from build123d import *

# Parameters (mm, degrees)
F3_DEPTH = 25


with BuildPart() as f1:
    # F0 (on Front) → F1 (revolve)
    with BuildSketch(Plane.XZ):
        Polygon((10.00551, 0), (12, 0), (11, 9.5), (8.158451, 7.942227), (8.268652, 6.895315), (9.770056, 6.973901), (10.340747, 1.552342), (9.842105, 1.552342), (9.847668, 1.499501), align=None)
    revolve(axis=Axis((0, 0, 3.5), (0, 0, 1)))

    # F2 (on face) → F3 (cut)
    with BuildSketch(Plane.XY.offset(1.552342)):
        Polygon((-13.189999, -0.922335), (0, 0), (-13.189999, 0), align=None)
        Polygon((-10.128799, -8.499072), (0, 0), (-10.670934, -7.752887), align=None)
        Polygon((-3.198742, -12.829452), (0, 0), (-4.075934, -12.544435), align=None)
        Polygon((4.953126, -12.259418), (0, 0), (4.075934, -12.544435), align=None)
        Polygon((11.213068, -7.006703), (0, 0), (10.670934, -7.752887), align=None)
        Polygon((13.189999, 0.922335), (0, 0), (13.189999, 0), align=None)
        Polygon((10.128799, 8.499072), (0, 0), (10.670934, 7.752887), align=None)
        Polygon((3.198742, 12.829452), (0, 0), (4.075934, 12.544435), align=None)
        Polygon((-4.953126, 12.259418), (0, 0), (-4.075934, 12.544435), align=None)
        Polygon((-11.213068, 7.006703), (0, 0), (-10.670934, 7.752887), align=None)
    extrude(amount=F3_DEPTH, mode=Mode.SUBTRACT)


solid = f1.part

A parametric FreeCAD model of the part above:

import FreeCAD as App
import Part
import Sketcher
Q = App.Units.Quantity


def add_polygon(sketch, points):
    """Adds a closed chain of lines whose ends are joined by coincident constraints."""
    first, n = sketch.GeometryCount, len(points)
    for a, b in zip(points, points[1:] + points[:1]):
        sketch.addGeometry(Part.LineSegment(App.Vector(*a, 0), App.Vector(*b, 0)), False)
    for i in range(n):
        sketch.addConstraint(Sketcher.Constraint("Coincident", first + i, 2, first + (i + 1) % n, 1))

doc = App.newDocument("Part")
body = doc.addObject("PartDesign::Body", "Body")

# Sketch on XZ plane
sketch1 = body.newObject("Sketcher::SketchObject", "Sketch")
sketch1.AttachmentSupport = (doc.getObject("XZ_Plane"), [""])
sketch1.MapMode = "FlatFace"
add_polygon(sketch1, [(10.01, 0), (12, 0), (11, 9.5), (8.16, 7.94), (8.27, 6.9), (9.77, 6.97), (10.34, 1.55), (9.84, 1.55), (9.85, 1.5)])  # lines 0-8
sketch1.addConstraint([
    Sketcher.Constraint("Horizontal", 0),
    Sketcher.Constraint("Horizontal", 6),
    Sketcher.Constraint("PointOnObject", 0, 2, -1),
    Sketcher.Constraint("Parallel", 1, 3),
    Sketcher.Constraint("Parallel", 3, 5),
    Sketcher.Constraint("Parallel", 5, 8),
    Sketcher.Constraint("DistanceX", -1, 1, 0, 2, Q("12 mm")),
    Sketcher.Constraint("DistanceX", -1, 1, 1, 2, Q("11 mm")),
    Sketcher.Constraint("DistanceY", -1, 1, 1, 2, Q("9.5 mm")),
    Sketcher.Constraint("DistanceX", 0, 1, 0, 2, Q("1.99449 mm")),
    Sketcher.Constraint("DistanceY", -1, 1, 4, 2, Q("6.973901 mm")),
    Sketcher.Constraint("DistanceY", -1, 1, 7, 2, Q("1.499501 mm")),
    Sketcher.Constraint("DistanceX", 2, 2, 3, 2, Q("0.110201 mm")),
    Sketcher.Constraint("Distance", 4, Q("1.503459 mm")),
    Sketcher.Constraint("DistanceX", 6, 2, 6, 1, Q("0.498642 mm")),
    Sketcher.Constraint("DistanceX", -1, 1, 2, 2, Q("8.158451 mm")),
    Sketcher.Constraint("DistanceX", 4, 2, 5, 2, Q("0.570691 mm")),
    Sketcher.Constraint("DistanceX", 7, 2, 5, 2, Q("0.493079 mm")),
])
revolution = body.newObject("PartDesign::Revolution", "Revolution")
revolution.Profile = sketch1
revolution.ReferenceAxis = (sketch1, ["V_Axis"])
revolution.Angle = 360

# Sketch on XY plane
sketch2 = body.newObject("Sketcher::SketchObject", "Sketch001")
sketch2.AttachmentSupport = (doc.getObject("XY_Plane"), [""])
sketch2.MapMode = "FlatFace"
sketch2.AttachmentOffset = App.Placement(App.Vector(0, 0, 1.552342), App.Rotation())
add_polygon(sketch2, [(-13.2, -0.9), (0, 0), (-13.2, 0)])  # lines 0-2
add_polygon(sketch2, [(-10.1, -8.5), (0, 0), (-10.7, -7.8)])  # lines 3-5
add_polygon(sketch2, [(-3.2, -12.8), (0, 0), (-4.1, -12.5)])  # lines 6-8
add_polygon(sketch2, [(5, -12.3), (0, 0), (4.1, -12.5)])  # lines 9-11
add_polygon(sketch2, [(11.2, -7), (0, 0), (10.7, -7.8)])  # lines 12-14
add_polygon(sketch2, [(13.2, 0.9), (0, 0), (13.2, 0)])  # lines 15-17
add_polygon(sketch2, [(10.1, 8.5), (0, 0), (10.7, 7.8)])  # lines 18-20
add_polygon(sketch2, [(3.2, 12.8), (0, 0), (4.1, 12.5)])  # lines 21-23
add_polygon(sketch2, [(-5, 12.3), (0, 0), (-4.1, 12.5)])  # lines 24-26
add_polygon(sketch2, [(-11.2, 7), (0, 0), (-10.7, 7.8)])  # lines 27-29
sketch2.addConstraint([
    Sketcher.Constraint("Horizontal", 1),
    Sketcher.Constraint("Vertical", 2),
    Sketcher.Constraint("Horizontal", 16),
    Sketcher.Constraint("Vertical", 17),
    Sketcher.Constraint("Coincident", 0, 2, -1, 1),
    Sketcher.Constraint("Coincident", 3, 2, -1, 1),
    Sketcher.Constraint("Coincident", 6, 2, -1, 1),
    Sketcher.Constraint("Coincident", 9, 2, -1, 1),
    Sketcher.Constraint("Coincident", 12, 2, -1, 1),
    Sketcher.Constraint("Coincident", 15, 2, -1, 1),
    Sketcher.Constraint("Coincident", 18, 2, -1, 1),
    Sketcher.Constraint("Coincident", 21, 2, -1, 1),
    Sketcher.Constraint("Coincident", 24, 2, -1, 1),
    Sketcher.Constraint("Coincident", 27, 2, -1, 1),
    Sketcher.Constraint("Symmetric", 2, 2, 17, 2, -1, 1),
    Sketcher.Constraint("Symmetric", 4, 2, 19, 2, -1, 1),
    Sketcher.Constraint("Symmetric", 5, 2, 20, 2, -1, 1),
    Sketcher.Constraint("Symmetric", 7, 2, 22, 2, -1, 1),
    Sketcher.Constraint("Symmetric", 8, 2, 23, 2, -1, 1),
    Sketcher.Constraint("Symmetric", 10, 2, 25, 2, -1, 1),
    Sketcher.Constraint("Symmetric", 11, 2, 26, 2, -1, 1),
    Sketcher.Constraint("Symmetric", 13, 2, 28, 2, -1, 1),
    Sketcher.Constraint("Symmetric", 14, 2, 29, 2, -1, 1),
    Sketcher.Constraint("Symmetric", 7, 2, 10, 2, -2),
    Sketcher.Constraint("Symmetric", 4, 2, 13, 2, -2),
    Sketcher.Constraint("Perpendicular", 4, 5),
    Sketcher.Constraint("Perpendicular", 7, 8),
    Sketcher.Constraint("Perpendicular", 10, 11),
    Sketcher.Constraint("Perpendicular", 13, 14),
    Sketcher.Constraint("Equal", 0, 3),
    Sketcher.Constraint("Equal", 3, 6),
    Sketcher.Constraint("Equal", 4, 7),
    Sketcher.Constraint("Equal", 6, 9),
    Sketcher.Constraint("Equal", 9, 12),
    Sketcher.Constraint("Angle", 0, Q("4.000002 deg")),
    Sketcher.Constraint("Angle", 3, Q("40.000002 deg")),
    Sketcher.Constraint("Angle", 4, Q("-144.000001 deg")),
    Sketcher.Constraint("Angle", 6, Q("75.999999 deg")),
    Sketcher.Constraint("DistanceX", 1, 2, 1, 1, Q("13.189999 mm")),
])
pocket1 = body.newObject("PartDesign::Pocket", "Pocket")
pocket1.Profile = sketch2
pocket1.Length = 25
pocket1.Reversed = True

doc.recompute()
